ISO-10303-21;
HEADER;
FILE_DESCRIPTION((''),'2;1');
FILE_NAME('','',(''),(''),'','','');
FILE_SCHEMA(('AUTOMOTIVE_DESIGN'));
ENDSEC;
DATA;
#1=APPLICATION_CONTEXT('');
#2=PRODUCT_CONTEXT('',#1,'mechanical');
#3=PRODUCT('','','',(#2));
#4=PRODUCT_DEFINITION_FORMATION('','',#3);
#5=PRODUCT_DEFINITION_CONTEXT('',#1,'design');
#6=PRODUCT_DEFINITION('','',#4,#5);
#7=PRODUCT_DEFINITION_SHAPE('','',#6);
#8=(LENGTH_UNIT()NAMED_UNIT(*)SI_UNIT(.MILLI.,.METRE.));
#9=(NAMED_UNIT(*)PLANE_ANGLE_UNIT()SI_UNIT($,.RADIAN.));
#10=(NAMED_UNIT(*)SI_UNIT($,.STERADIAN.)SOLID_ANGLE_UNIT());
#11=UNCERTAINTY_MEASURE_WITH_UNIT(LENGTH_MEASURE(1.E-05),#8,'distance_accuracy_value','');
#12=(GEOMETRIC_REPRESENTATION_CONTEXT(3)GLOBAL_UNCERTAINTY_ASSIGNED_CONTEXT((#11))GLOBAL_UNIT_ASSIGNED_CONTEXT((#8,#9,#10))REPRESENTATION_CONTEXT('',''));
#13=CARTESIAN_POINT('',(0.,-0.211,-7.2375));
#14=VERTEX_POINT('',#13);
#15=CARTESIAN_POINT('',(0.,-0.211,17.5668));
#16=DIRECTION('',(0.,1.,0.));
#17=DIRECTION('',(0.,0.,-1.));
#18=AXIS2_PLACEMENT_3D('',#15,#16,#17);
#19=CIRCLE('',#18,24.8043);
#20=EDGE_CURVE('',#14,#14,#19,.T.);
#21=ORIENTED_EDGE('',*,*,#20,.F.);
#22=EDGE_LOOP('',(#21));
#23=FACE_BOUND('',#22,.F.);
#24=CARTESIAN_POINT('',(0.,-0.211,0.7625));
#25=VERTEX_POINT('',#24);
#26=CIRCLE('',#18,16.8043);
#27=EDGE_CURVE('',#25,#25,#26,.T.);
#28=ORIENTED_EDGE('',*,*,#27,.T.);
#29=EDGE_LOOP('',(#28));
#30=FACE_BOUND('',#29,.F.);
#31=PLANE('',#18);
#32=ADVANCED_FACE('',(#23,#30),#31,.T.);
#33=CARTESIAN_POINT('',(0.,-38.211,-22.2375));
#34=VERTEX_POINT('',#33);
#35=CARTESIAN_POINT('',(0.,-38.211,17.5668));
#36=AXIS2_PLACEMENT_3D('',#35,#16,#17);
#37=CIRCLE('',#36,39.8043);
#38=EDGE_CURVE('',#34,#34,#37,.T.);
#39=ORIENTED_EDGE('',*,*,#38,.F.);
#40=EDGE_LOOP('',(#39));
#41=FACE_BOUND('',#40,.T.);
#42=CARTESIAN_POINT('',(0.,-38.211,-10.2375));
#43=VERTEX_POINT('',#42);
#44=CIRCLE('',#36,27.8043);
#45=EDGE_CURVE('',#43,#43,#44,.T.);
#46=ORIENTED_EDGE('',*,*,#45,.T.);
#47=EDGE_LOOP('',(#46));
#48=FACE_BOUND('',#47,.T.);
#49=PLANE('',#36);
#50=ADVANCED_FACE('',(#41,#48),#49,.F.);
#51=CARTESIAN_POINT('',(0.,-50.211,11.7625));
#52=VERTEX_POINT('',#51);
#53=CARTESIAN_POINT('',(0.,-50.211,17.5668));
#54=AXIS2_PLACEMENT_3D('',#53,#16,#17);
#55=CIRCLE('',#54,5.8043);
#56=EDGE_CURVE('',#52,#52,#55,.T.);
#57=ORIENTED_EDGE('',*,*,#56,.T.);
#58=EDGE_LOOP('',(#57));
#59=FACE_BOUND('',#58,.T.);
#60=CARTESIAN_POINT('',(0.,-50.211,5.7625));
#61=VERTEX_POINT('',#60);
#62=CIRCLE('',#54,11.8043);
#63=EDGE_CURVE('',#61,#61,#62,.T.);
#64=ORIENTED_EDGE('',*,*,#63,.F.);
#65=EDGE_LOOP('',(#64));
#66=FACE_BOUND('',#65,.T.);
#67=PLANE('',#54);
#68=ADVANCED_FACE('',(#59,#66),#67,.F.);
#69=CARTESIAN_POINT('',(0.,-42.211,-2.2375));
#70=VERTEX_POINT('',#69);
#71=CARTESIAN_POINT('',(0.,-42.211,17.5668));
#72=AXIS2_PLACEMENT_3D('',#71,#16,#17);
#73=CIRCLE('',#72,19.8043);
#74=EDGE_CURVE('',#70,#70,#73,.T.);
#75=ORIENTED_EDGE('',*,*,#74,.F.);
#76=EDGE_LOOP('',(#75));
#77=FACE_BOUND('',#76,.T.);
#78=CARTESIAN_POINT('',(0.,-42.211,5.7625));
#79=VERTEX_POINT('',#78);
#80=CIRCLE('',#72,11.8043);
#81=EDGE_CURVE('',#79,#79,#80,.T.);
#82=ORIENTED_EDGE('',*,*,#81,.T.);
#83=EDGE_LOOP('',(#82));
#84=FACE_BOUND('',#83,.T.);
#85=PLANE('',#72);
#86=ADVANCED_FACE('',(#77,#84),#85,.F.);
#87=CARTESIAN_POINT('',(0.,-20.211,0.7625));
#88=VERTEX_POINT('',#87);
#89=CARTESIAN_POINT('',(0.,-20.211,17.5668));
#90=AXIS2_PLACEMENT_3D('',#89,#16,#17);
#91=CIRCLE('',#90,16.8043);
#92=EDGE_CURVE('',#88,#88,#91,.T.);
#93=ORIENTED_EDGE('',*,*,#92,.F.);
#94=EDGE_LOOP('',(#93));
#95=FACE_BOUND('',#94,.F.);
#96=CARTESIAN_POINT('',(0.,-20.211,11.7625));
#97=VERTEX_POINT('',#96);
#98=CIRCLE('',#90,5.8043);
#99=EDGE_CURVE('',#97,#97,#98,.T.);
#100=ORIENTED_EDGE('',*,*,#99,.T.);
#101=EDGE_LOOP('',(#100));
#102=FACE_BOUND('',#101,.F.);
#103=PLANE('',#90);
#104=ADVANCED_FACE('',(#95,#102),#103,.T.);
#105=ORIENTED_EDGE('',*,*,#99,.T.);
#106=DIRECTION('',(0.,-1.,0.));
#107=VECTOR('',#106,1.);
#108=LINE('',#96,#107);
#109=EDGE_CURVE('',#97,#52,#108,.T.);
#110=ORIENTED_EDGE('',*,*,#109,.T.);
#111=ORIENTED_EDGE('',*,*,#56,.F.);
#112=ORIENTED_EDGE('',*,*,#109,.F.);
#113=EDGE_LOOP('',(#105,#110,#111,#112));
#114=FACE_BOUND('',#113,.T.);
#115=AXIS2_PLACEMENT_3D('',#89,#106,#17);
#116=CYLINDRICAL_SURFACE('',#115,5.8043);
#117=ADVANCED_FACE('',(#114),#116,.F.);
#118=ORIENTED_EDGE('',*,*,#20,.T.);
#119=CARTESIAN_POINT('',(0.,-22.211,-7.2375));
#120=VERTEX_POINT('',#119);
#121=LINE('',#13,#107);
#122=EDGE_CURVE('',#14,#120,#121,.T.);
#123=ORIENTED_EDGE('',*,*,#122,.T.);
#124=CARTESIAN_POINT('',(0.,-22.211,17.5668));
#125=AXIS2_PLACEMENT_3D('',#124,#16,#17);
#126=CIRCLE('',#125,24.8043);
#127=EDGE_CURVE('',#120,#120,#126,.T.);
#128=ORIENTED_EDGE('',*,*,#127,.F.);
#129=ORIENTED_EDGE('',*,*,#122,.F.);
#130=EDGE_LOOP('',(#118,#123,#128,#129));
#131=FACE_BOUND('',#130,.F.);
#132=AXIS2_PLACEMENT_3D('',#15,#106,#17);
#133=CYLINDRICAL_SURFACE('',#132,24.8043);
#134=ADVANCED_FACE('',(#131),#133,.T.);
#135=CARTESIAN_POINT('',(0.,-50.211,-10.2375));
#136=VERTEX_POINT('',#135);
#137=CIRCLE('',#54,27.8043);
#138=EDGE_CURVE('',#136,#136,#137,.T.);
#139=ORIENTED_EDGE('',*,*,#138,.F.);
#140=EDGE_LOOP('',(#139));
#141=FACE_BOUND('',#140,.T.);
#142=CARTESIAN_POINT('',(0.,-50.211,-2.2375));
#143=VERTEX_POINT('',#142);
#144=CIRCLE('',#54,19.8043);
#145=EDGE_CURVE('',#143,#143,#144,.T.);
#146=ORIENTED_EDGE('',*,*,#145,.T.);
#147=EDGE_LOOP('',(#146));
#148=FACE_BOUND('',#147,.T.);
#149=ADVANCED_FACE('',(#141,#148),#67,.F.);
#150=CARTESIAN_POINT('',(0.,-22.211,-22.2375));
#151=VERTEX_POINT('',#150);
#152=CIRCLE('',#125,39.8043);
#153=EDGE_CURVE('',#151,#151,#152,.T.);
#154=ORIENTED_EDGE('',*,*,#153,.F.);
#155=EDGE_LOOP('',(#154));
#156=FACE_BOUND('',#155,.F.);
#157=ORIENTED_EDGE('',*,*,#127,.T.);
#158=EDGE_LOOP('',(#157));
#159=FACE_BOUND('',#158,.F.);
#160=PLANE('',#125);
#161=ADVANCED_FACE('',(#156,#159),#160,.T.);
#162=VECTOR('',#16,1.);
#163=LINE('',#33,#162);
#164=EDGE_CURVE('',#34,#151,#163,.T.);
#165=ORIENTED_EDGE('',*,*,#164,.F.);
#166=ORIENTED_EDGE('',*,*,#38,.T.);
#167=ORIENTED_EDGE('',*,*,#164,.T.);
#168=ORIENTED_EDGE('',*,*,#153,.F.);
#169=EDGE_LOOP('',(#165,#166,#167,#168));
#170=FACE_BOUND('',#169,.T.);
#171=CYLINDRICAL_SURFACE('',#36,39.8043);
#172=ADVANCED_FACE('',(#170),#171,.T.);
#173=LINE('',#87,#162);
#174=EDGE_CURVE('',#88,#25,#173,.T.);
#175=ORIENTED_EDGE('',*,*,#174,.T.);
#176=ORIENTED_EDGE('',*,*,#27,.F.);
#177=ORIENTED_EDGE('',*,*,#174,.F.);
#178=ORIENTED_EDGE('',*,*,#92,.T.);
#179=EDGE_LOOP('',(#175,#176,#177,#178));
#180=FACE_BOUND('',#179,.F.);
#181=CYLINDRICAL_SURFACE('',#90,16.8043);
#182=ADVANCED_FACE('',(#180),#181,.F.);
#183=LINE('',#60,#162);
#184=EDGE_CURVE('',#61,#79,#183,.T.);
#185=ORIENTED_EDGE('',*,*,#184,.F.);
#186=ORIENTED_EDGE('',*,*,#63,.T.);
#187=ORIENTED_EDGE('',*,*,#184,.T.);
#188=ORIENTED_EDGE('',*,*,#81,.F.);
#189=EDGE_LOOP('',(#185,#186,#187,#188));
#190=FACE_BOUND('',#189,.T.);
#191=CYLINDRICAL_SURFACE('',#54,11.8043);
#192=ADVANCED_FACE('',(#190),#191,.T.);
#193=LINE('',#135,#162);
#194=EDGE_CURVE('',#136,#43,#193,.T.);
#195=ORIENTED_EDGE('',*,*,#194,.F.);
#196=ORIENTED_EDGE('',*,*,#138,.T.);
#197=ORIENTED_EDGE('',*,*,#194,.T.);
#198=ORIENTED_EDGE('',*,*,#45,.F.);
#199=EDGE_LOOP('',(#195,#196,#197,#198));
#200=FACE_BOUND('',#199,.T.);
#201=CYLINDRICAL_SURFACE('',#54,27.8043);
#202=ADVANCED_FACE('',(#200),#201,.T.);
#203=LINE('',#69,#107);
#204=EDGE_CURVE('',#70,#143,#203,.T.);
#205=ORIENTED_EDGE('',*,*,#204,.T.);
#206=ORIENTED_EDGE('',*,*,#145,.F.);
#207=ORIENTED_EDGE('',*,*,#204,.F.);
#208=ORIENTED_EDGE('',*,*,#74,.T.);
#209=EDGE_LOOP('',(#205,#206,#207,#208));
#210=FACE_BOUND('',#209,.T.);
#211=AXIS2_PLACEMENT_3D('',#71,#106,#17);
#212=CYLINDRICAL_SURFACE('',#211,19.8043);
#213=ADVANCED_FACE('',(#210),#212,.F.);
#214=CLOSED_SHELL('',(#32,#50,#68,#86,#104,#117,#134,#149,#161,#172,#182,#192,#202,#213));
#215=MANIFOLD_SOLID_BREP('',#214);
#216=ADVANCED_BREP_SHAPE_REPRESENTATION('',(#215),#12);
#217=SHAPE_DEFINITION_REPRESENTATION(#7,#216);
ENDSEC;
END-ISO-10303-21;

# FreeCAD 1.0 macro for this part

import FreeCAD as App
import Part
import Sketcher


def add_polygon(sketch, points):
    """Adds a closed chain of lines whose ends are joined by coincident constraints."""
    first, n = sketch.GeometryCount, len(points)
    for a, b in zip(points, points[1:] + points[:1]):
        sketch.addGeometry(Part.LineSegment(App.Vector(*a, 0), App.Vector(*b, 0)), False)
    for i in range(n):
        sketch.addConstraint(Sketcher.Constraint("Coincident", first + i, 2, first + (i + 1) % n, 1))

doc = App.newDocument("Part")
body = doc.addObject("PartDesign::Body", "Body")

# Sketch on YZ plane
sketch1 = body.newObject("Sketcher::SketchObject", "Sketch")
sketch1.AttachmentSupport = (doc.getObject("YZ_Plane"), [""])
sketch1.MapMode = "FlatFace"
add_polygon(sketch1, [(-20, 1), (-20, 12), (-50, 12), (-50, 6), (-42, 6), (-42, -2), (-50, -2), (-50, -10), (-38, -10), (-38, -22), (-22, -22), (-22, -7), (0, -7), (0, 1)])  # lines 0-13
sketch1.addGeometry(Part.LineSegment(App.Vector(-50, 18, 0), App.Vector(0, 18, 0)), True)  # axis
sketch1.addConstraint([
    Sketcher.Constraint("Vertical", 0),
    Sketcher.Constraint("Horizontal", 1),
    Sketcher.Constraint("Vertical", 2),
    Sketcher.Constraint("Horizontal", 3),
    Sketcher.Constraint("Vertical", 4),
    Sketcher.Constraint("Horizontal", 5),
    Sketcher.Constraint("Vertical", 6),
    Sketcher.Constraint("Horizontal", 7),
    Sketcher.Constraint("Vertical", 8),
    Sketcher.Constraint("Horizontal", 9),
    Sketcher.Constraint("Vertical", 10),
    Sketcher.Constraint("Horizontal", 11),
    Sketcher.Constraint("Vertical", 12),
    Sketcher.Constraint("Horizontal", 13),
    Sketcher.Constraint("Horizontal", 14),
    Sketcher.Constraint("Vertical", 2, 2, 5, 2),
    Sketcher.Constraint("Vertical", 6, 2, 14, 1),
    Sketcher.Constraint("Vertical", 12, 2, 14, 2),
    Sketcher.Constraint("Equal", 5, 4),
    Sketcher.Constraint("Equal", 4, 6),
    Sketcher.Constraint("Equal", 7, 8),
    Sketcher.Constraint("Equal", 6, 12),
    Sketcher.Constraint("DistanceX", 3, 1, 3, 2, 8.0),
    Sketcher.Constraint("DistanceX", 7, 1, 7, 2, 12.0),
    Sketcher.Constraint("DistanceX", 11, 1, 11, 2, 22.0),
    Sketcher.Constraint("DistanceX", 13, 2, 13, 1, 20.0),
    Sketcher.Constraint("DistanceX", 14, 1, 14, 2, 50.0),
    Sketcher.Constraint("DistanceY", 0, 1, 0, 2, 11.0),
    Sketcher.Constraint("DistanceY", 2, 2, 2, 1, 6.0),
    Sketcher.Constraint("DistanceX", 0, 2, -1, 1, 20.211),
    Sketcher.Constraint("DistanceY", -1, 1, 0, 2, 11.7625),
    Sketcher.Constraint("DistanceY", -1, 1, 14, 1, 17.5668),
])
revolution = body.newObject("PartDesign::Revolution", "Revolution")
revolution.Profile = sketch1
revolution.ReferenceAxis = (sketch1, ["Axis0"])
revolution.Angle = 360

doc.recompute()
